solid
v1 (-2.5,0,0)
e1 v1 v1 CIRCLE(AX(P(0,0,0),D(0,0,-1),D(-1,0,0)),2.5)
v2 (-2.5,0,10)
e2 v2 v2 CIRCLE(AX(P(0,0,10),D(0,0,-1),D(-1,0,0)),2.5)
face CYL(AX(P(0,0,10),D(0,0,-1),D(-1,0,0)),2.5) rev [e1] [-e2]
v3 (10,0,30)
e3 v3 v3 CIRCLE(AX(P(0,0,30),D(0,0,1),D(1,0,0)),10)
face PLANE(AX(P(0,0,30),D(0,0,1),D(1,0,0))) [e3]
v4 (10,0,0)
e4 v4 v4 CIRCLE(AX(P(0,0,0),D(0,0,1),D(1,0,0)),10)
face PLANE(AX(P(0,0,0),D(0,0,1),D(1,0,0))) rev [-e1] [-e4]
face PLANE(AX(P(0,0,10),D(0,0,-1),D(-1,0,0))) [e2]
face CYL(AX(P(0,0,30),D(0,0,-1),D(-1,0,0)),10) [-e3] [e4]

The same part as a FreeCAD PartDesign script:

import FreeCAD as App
import Part
import Sketcher
from FreeCAD import Vector
Q = App.Units.Quantity

doc = App.newDocument("Part")
body = doc.addObject("PartDesign::Body", "Body")

# Sketch on XY plane
sketch1 = body.newObject("Sketcher::SketchObject", "Sketch")
sketch1.AttachmentSupport = (doc.getObject("XY_Plane"), [""])
sketch1.MapMode = "FlatFace"
sketch1.addGeometry(Part.Circle(Vector(0, 0, 0), Vector(0, 0, 1), 10), False)
sketch1.addConstraint([
    Sketcher.Constraint("Coincident", 0, 3, -1, 1),
    Sketcher.Constraint("Diameter", 0, Q("20 mm")),
])
pad1 = body.newObject("PartDesign::Pad", "Pad")
pad1.Profile = sketch1
pad1.Length = 30

# Sketch on XY plane
sketch2 = body.newObject("Sketcher::SketchObject", "Sketch001")
sketch2.AttachmentSupport = (doc.getObject("XY_Plane"), [""])
sketch2.MapMode = "FlatFace"
sketch2.addGeometry(Part.Circle(Vector(0, 0, 0), Vector(0, 0, 1), 2.5), False)
sketch2.addConstraint([
    Sketcher.Constraint("Coincident", 0, 3, -1, 1),
    Sketcher.Constraint("Diameter", 0, Q("5 mm")),
])
pocket1 = body.newObject("PartDesign::Pocket", "Pocket")
pocket1.Profile = sketch2
pocket1.Length = 10
pocket1.Reversed = True

doc.recompute()
